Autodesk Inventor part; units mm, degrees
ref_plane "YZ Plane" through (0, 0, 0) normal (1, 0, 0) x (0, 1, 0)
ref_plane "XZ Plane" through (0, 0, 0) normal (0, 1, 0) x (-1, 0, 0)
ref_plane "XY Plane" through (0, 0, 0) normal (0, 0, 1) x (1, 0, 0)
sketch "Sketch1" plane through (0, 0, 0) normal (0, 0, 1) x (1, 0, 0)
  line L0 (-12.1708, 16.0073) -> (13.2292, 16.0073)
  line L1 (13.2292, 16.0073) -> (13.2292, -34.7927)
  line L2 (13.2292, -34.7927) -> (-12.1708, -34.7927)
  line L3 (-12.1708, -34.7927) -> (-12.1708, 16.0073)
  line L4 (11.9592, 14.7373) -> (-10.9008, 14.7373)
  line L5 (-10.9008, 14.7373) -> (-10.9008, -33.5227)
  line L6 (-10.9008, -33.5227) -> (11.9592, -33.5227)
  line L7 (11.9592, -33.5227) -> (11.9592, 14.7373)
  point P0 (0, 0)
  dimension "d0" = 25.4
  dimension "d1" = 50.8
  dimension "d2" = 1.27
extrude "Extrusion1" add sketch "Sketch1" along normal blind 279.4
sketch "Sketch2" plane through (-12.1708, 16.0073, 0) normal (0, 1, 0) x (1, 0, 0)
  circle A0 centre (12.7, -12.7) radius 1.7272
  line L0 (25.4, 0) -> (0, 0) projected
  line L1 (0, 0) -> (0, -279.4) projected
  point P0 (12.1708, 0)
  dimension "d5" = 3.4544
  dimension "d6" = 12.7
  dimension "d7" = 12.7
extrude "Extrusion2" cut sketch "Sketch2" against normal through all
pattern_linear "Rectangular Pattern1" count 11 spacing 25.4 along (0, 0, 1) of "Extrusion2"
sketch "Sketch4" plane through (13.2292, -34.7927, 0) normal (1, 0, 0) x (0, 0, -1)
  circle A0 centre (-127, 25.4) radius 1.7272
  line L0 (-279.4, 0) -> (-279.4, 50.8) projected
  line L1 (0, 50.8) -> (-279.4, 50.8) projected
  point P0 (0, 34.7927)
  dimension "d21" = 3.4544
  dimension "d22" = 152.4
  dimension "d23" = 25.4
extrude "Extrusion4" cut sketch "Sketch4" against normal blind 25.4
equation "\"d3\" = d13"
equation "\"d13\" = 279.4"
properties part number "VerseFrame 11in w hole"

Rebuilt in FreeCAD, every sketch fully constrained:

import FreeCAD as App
import Part
import Sketcher

V = App.Vector
Q = App.Units.Quantity

doc = App.newDocument("Part")
params = doc.addObject("Spreadsheet::Sheet", "Params")
for row, (alias, value) in enumerate([
    ("sketch1_width", "1 in"),
    ("sketch1_height", "2 in"),
    ("pad1_length", "11 in"),
    ("sketch2_diameter", "0.136 in"),
    ("linearpattern_pitch", "1 in"),
    ("sketch3_diameter", "0.136 in"),
    ("pocket2_length", "1 in"),
], start=1):
    params.set(f"A{row}", alias)
    params.set(f"B{row}", "=" + value)
    params.setAlias(f"B{row}", alias)

body = doc.addObject("PartDesign::Body", "Body")

# Sketch on XY plane
sketch1 = body.newObject("Sketcher::SketchObject", "Sketch")
sketch1.AttachmentSupport = (doc.getObject("XY_Plane"), [""])
sketch1.MapMode = "FlatFace"
sketch1.addGeometry([
    Part.LineSegment(V(13.2292, 16.0073, 0), V(-12.1708, 16.0073, 0)),  # 0
    Part.LineSegment(V(-12.1708, 16.0073, 0), V(-12.1708, -34.7927, 0)),  # 1
    Part.LineSegment(V(-12.1708, -34.7927, 0), V(13.2292, -34.7927, 0)),  # 2
    Part.LineSegment(V(13.2292, -34.7927, 0), V(13.2292, 16.0073, 0)),  # 3
    Part.LineSegment(V(-10.9008, 14.7373, 0), V(11.9592, 14.7373, 0)),  # 4
    Part.LineSegment(V(11.9592, 14.7373, 0), V(11.9592, -33.5227, 0)),  # 5
    Part.LineSegment(V(11.9592, -33.5227, 0), V(-10.9008, -33.5227, 0)),  # 6
    Part.LineSegment(V(-10.9008, -33.5227, 0), V(-10.9008, 14.7373, 0)),  # 7
], False)
sketch1.addConstraint([
    Sketcher.Constraint("Coincident", 0, 2, 1, 1),
    Sketcher.Constraint("Coincident", 1, 2, 2, 1),
    Sketcher.Constraint("Coincident", 2, 2, 3, 1),
    Sketcher.Constraint("Coincident", 3, 2, 0, 1),
    Sketcher.Constraint("Coincident", 4, 2, 5, 1),
    Sketcher.Constraint("Coincident", 5, 2, 6, 1),
    Sketcher.Constraint("Coincident", 6, 2, 7, 1),
    Sketcher.Constraint("Coincident", 7, 2, 4, 1),
    Sketcher.Constraint("Horizontal", 0),
    Sketcher.Constraint("Vertical", 1),
    Sketcher.Constraint("Horizontal", 2),
    Sketcher.Constraint("Vertical", 3),
    Sketcher.Constraint("Horizontal", 4),
    Sketcher.Constraint("Vertical", 5),
    Sketcher.Constraint("Horizontal", 6),
    Sketcher.Constraint("Vertical", 7),
    Sketcher.Constraint("DistanceX", 0, 2, 0, 1, Q("1 in")),
    Sketcher.Constraint("DistanceY", 1, 2, 1, 1, Q("2 in")),
    Sketcher.Constraint("DistanceX", 4, 2, 3, 2, Q("0.05 in")),
    Sketcher.Constraint("DistanceY", 4, 2, 3, 2, Q("0.05 in")),
    Sketcher.Constraint("DistanceY", 2, 2, 5, 2, Q("0.05 in")),
    Sketcher.Constraint("DistanceX", 1, 2, 6, 2, Q("0.05 in")),
    Sketcher.Constraint("DistanceY", -1, 1, 0, 2, Q("0.6302 in")),
    Sketcher.Constraint("DistanceX", 0, 2, -1, 1, 12.1708),
])
sketch1.setExpression("Constraints[16]", "Params.sketch1_width")
sketch1.setExpression("Constraints[17]", "Params.sketch1_height")
pad1 = body.newObject("PartDesign::Pad", "Pad")
pad1.Profile = sketch1
pad1.setExpression("Length", "Params.pad1_length")

# Sketch on XZ plane
sketch2 = body.newObject("Sketcher::SketchObject", "Sketch001")
sketch2.AttachmentSupport = (doc.getObject("XZ_Plane"), [""])
sketch2.MapMode = "FlatFace"
sketch2.AttachmentOffset = App.Placement(V(0, 0, -0.6302087 * 25.4), App.Rotation())
sketch2.addGeometry(Part.Circle(V(0.5292, 12.7, 0), V(0, 0, 1), 1.7272), False)
sketch2.addConstraint([
    Sketcher.Constraint("Diameter", 0, Q("0.136 in")),
    Sketcher.Constraint("DistanceY", -1, 1, 0, 3, Q("0.5 in")),
    Sketcher.Constraint("DistanceX", -1, 1, 0, 3, 0.5292),
])
sketch2.setExpression("Constraints[0]", "Params.sketch2_diameter")
pocket1 = body.newObject("PartDesign::Pocket", "Pocket")
pocket1.Profile = sketch2
pocket1.Type = "ThroughAll"
pocket1.Reversed = True
doc.recompute()

linearpattern = body.newObject("PartDesign::LinearPattern", "LinearPattern")
linearpattern.Originals = [pocket1]
linearpattern.Direction = (doc.getObject("Z_Axis"), [""])
linearpattern.Mode = "offset"
linearpattern.setExpression("Offset", "Params.linearpattern_pitch")
linearpattern.Occurrences = 11
body.Tip = linearpattern

# Sketch on YZ plane
sketch3 = body.newObject("Sketcher::SketchObject", "Sketch002")
sketch3.AttachmentSupport = (doc.getObject("YZ_Plane"), [""])
sketch3.MapMode = "FlatFace"
sketch3.AttachmentOffset = App.Placement(V(0, 0, 13.2292), App.Rotation())
sketch3.addGeometry(Part.Circle(V(-9.3927, 127, 0), V(0, 0, 1), 1.7272), False)
sketch3.addConstraint([
    Sketcher.Constraint("Diameter", 0, Q("0.136 in")),
    Sketcher.Constraint("DistanceY", -1, 1, 0, 3, Q("5 in")),
    Sketcher.Constraint("DistanceX", 0, 3, -1, 1, Q("0.3698 in")),
])
sketch3.setExpression("Constraints[0]", "Params.sketch3_diameter")
pocket2 = body.newObject("PartDesign::Pocket", "Pocket001")
pocket2.Profile = sketch3
pocket2.setExpression("Length", "Params.pocket2_length")

doc.recompute()
